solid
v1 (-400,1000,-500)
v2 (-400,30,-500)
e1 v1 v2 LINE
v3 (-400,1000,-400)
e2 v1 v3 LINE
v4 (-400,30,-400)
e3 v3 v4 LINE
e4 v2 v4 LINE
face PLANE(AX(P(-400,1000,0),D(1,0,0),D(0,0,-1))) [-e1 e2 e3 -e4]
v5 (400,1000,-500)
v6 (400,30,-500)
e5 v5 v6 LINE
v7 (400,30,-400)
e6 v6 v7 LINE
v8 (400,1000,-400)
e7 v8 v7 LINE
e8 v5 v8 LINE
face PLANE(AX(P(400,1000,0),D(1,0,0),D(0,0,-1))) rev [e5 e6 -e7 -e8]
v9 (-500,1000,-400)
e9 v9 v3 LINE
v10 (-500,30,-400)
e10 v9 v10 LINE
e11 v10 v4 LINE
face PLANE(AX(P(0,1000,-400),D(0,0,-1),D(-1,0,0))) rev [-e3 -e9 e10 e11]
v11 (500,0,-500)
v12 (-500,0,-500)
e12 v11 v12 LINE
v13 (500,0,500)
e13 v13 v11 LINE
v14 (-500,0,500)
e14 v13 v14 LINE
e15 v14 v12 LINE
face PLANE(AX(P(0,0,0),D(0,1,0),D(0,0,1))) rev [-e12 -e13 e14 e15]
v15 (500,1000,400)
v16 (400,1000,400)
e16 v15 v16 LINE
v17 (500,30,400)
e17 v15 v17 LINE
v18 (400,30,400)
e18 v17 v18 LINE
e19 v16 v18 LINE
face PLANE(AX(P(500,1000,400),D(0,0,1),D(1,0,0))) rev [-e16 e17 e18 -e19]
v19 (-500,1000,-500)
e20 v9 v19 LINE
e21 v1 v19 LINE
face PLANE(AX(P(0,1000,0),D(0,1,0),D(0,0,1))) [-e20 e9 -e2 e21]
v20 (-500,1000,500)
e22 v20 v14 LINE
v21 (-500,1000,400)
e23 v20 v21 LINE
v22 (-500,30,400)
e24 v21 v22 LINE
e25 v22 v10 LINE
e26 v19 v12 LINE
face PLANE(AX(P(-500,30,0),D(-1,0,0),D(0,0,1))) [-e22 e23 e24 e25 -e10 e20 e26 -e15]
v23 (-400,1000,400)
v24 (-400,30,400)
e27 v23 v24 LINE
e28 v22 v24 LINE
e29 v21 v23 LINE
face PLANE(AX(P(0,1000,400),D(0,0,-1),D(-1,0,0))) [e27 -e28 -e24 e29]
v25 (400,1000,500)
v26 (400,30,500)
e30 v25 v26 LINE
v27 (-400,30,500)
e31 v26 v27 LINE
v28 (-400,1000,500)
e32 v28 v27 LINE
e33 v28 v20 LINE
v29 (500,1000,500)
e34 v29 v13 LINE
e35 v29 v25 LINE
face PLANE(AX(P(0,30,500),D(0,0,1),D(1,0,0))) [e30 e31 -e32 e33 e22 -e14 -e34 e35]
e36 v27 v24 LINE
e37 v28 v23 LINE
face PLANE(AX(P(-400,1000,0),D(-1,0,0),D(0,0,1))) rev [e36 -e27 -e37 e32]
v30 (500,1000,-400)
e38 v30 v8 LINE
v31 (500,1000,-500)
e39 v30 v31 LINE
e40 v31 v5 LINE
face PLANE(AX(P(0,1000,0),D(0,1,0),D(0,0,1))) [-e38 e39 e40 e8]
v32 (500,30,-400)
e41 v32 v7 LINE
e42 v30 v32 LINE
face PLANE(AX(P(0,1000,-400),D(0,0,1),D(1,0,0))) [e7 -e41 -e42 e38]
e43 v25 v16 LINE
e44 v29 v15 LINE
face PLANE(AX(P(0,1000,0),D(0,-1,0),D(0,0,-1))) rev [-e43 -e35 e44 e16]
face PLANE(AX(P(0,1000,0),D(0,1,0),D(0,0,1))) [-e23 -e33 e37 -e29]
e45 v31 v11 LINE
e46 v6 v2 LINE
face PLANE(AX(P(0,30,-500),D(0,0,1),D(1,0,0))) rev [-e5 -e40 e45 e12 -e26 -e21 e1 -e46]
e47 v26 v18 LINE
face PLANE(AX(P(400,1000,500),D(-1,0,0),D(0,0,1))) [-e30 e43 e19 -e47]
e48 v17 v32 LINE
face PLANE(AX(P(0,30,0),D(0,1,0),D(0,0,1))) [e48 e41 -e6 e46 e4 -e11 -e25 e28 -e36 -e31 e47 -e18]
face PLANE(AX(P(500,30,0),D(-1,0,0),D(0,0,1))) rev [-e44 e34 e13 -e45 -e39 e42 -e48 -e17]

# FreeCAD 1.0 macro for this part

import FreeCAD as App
import Part
import Sketcher
from FreeCAD import Vector

doc = App.newDocument("Part")
body = doc.addObject("PartDesign::Body", "Body")

sketch1 = doc.addObject("Sketcher::SketchObject", "Sketch")
body.addObject(sketch1)
sketch1.AttachmentSupport = (doc.XZ_Plane, [""])
sketch1.MapMode = "FlatFace"
sketch1.addGeometry([
    Part.LineSegment(Vector(-400, 500, 0), Vector(400, 500, 0)),
    Part.LineSegment(Vector(400, 500, 0), Vector(400, 400, 0)),
    Part.LineSegment(Vector(400, 400, 0), Vector(500, 400, 0)),
    Part.LineSegment(Vector(500, 400, 0), Vector(500, -400, 0)),
    Part.LineSegment(Vector(500, -400, 0), Vector(400, -400, 0)),
    Part.LineSegment(Vector(400, -400, 0), Vector(400, -500, 0)),
    Part.LineSegment(Vector(400, -500, 0), Vector(-400, -500, 0)),
    Part.LineSegment(Vector(-400, -500, 0), Vector(-400, -400, 0)),
    Part.LineSegment(Vector(-400, -400, 0), Vector(-500, -400, 0)),
    Part.LineSegment(Vector(-500, -400, 0), Vector(-500, 400, 0)),
    Part.LineSegment(Vector(-500, 400, 0), Vector(-400, 400, 0)),
    Part.LineSegment(Vector(-400, 400, 0), Vector(-400, 500, 0)),
], False)
sketch1.addConstraint([
    Sketcher.Constraint("Coincident", 0, 2, 1, 1),
    Sketcher.Constraint("Coincident", 1, 2, 2, 1),
    Sketcher.Constraint("Coincident", 2, 2, 3, 1),
    Sketcher.Constraint("Coincident", 3, 2, 4, 1),
    Sketcher.Constraint("Coincident", 4, 2, 5, 1),
    Sketcher.Constraint("Coincident", 5, 2, 6, 1),
    Sketcher.Constraint("Coincident", 6, 2, 7, 1),
    Sketcher.Constraint("Coincident", 7, 2, 8, 1),
    Sketcher.Constraint("Coincident", 8, 2, 9, 1),
    Sketcher.Constraint("Coincident", 9, 2, 10, 1),
    Sketcher.Constraint("Coincident", 10, 2, 11, 1),
    Sketcher.Constraint("Coincident", 11, 2, 0, 1),
    Sketcher.Constraint("Horizontal", 0),
    Sketcher.Constraint("Vertical", 1),
    Sketcher.Constraint("Horizontal", 2),
    Sketcher.Constraint("Vertical", 3),
    Sketcher.Constraint("Horizontal", 4),
    Sketcher.Constraint("Vertical", 5),
    Sketcher.Constraint("Horizontal", 6),
    Sketcher.Constraint("Vertical", 7),
    Sketcher.Constraint("Horizontal", 8),
    Sketcher.Constraint("Vertical", 9),
    Sketcher.Constraint("Horizontal", 10),
    Sketcher.Constraint("Vertical", 11),
    Sketcher.Constraint("Symmetric", 0, 2, 6, 2, -1, 1),
    Sketcher.Constraint("Symmetric", 2, 2, 8, 2, -1, 1),
    Sketcher.Constraint("Symmetric", 4, 2, 10, 2, -1, 1),
    Sketcher.Constraint("Symmetric", 4, 2, 7, 2, -2),
    Sketcher.Constraint("Equal", 10, 1),
    Sketcher.Constraint("Equal", 6, 3),
    Sketcher.Constraint("DistanceX", 0, 1, 0, 2, 800.0),
    Sketcher.Constraint("DistanceX", 2, 1, 2, 2, 100.0),
])
pad1 = doc.addObject("PartDesign::Pad", "Pad")
body.addObject(pad1)
pad1.Profile = sketch1
pad1.Length = 30
pad1.Reversed = True

sketch2 = doc.addObject("Sketcher::SketchObject", "Sketch001")
body.addObject(sketch2)
sketch2.AttachmentSupport = (doc.XZ_Plane, [""])
sketch2.MapMode = "FlatFace"
sketch2.addGeometry([
    Part.LineSegment(Vector(-500, 400, 0), Vector(-500, 500, 0)),
    Part.LineSegment(Vector(-500, 500, 0), Vector(-400, 500, 0)),
    Part.LineSegment(Vector(-400, 500, 0), Vector(-400, 400, 0)),
    Part.LineSegment(Vector(-400, 400, 0), Vector(-500, 400, 0)),
    Part.LineSegment(Vector(-500, -500, 0), Vector(-500, -400, 0)),
    Part.LineSegment(Vector(-500, -400, 0), Vector(-400, -400, 0)),
    Part.LineSegment(Vector(-400, -400, 0), Vector(-400, -500, 0)),
    Part.LineSegment(Vector(-400, -500, 0), Vector(-500, -500, 0)),
    Part.LineSegment(Vector(400, -500, 0), Vector(400, -400, 0)),
    Part.LineSegment(Vector(400, -400, 0), Vector(500, -400, 0)),
    Part.LineSegment(Vector(500, -400, 0), Vector(500, -500, 0)),
    Part.LineSegment(Vector(500, -500, 0), Vector(400, -500, 0)),
    Part.LineSegment(Vector(400, 400, 0), Vector(400, 500, 0)),
    Part.LineSegment(Vector(400, 500, 0), Vector(500, 500, 0)),
    Part.LineSegment(Vector(500, 500, 0), Vector(500, 400, 0)),
    Part.LineSegment(Vector(500, 400, 0), Vector(400, 400, 0)),
], False)
sketch2.addConstraint([
    Sketcher.Constraint("Coincident", 0, 2, 1, 1),
    Sketcher.Constraint("Coincident", 1, 2, 2, 1),
    Sketcher.Constraint("Coincident", 2, 2, 3, 1),
    Sketcher.Constraint("Coincident", 3, 2, 0, 1),
    Sketcher.Constraint("Coincident", 4, 2, 5, 1),
    Sketcher.Constraint("Coincident", 5, 2, 6, 1),
    Sketcher.Constraint("Coincident", 6, 2, 7, 1),
    Sketcher.Constraint("Coincident", 7, 2, 4, 1),
    Sketcher.Constraint("Coincident", 8, 2, 9, 1),
    Sketcher.Constraint("Coincident", 9, 2, 10, 1),
    Sketcher.Constraint("Coincident", 10, 2, 11, 1),
    Sketcher.Constraint("Coincident", 11, 2, 8, 1),
    Sketcher.Constraint("Coincident", 12, 2, 13, 1),
    Sketcher.Constraint("Coincident", 13, 2, 14, 1),
    Sketcher.Constraint("Coincident", 14, 2, 15, 1),
    Sketcher.Constraint("Coincident", 15, 2, 12, 1),
    Sketcher.Constraint("Vertical", 0),
    Sketcher.Constraint("Horizontal", 1),
    Sketcher.Constraint("Vertical", 2),
    Sketcher.Constraint("Horizontal", 3),
    Sketcher.Constraint("Vertical", 4),
    Sketcher.Constraint("Horizontal", 5),
    Sketcher.Constraint("Vertical", 6),
    Sketcher.Constraint("Horizontal", 7),
    Sketcher.Constraint("Vertical", 8),
    Sketcher.Constraint("Horizontal", 9),
    Sketcher.Constraint("Vertical", 10),
    Sketcher.Constraint("Horizontal", 11),
    Sketcher.Constraint("Vertical", 12),
    Sketcher.Constraint("Horizontal", 13),
    Sketcher.Constraint("Vertical", 14),
    Sketcher.Constraint("Horizontal", 15),
    Sketcher.Constraint("Symmetric", 2, 2, 8, 2, -1, 1),
    Sketcher.Constraint("Symmetric", 0, 2, 10, 2, -1, 1),
    Sketcher.Constraint("Symmetric", 6, 2, 12, 2, -1, 1),
    Sketcher.Constraint("Symmetric", 4, 2, 14, 2, -1, 1),
    Sketcher.Constraint("Symmetric", 5, 2, 8, 2, -2),
    Sketcher.Constraint("Symmetric", 7, 2, 10, 2, -2),
    Sketcher.Constraint("Equal", 15, 0),
    Sketcher.Constraint("DistanceX", 1, 1, 1, 2, 100.0),
    Sketcher.Constraint("DistanceX", 0, 2, -1, 1, 500.0),
    Sketcher.Constraint("DistanceY", -1, 1, 0, 2, 500.0),
])
pad2 = doc.addObject("PartDesign::Pad", "Pad001")
body.addObject(pad2)
pad2.Profile = sketch2
pad2.Length = 1000
pad2.Reversed = True

doc.recompute()
